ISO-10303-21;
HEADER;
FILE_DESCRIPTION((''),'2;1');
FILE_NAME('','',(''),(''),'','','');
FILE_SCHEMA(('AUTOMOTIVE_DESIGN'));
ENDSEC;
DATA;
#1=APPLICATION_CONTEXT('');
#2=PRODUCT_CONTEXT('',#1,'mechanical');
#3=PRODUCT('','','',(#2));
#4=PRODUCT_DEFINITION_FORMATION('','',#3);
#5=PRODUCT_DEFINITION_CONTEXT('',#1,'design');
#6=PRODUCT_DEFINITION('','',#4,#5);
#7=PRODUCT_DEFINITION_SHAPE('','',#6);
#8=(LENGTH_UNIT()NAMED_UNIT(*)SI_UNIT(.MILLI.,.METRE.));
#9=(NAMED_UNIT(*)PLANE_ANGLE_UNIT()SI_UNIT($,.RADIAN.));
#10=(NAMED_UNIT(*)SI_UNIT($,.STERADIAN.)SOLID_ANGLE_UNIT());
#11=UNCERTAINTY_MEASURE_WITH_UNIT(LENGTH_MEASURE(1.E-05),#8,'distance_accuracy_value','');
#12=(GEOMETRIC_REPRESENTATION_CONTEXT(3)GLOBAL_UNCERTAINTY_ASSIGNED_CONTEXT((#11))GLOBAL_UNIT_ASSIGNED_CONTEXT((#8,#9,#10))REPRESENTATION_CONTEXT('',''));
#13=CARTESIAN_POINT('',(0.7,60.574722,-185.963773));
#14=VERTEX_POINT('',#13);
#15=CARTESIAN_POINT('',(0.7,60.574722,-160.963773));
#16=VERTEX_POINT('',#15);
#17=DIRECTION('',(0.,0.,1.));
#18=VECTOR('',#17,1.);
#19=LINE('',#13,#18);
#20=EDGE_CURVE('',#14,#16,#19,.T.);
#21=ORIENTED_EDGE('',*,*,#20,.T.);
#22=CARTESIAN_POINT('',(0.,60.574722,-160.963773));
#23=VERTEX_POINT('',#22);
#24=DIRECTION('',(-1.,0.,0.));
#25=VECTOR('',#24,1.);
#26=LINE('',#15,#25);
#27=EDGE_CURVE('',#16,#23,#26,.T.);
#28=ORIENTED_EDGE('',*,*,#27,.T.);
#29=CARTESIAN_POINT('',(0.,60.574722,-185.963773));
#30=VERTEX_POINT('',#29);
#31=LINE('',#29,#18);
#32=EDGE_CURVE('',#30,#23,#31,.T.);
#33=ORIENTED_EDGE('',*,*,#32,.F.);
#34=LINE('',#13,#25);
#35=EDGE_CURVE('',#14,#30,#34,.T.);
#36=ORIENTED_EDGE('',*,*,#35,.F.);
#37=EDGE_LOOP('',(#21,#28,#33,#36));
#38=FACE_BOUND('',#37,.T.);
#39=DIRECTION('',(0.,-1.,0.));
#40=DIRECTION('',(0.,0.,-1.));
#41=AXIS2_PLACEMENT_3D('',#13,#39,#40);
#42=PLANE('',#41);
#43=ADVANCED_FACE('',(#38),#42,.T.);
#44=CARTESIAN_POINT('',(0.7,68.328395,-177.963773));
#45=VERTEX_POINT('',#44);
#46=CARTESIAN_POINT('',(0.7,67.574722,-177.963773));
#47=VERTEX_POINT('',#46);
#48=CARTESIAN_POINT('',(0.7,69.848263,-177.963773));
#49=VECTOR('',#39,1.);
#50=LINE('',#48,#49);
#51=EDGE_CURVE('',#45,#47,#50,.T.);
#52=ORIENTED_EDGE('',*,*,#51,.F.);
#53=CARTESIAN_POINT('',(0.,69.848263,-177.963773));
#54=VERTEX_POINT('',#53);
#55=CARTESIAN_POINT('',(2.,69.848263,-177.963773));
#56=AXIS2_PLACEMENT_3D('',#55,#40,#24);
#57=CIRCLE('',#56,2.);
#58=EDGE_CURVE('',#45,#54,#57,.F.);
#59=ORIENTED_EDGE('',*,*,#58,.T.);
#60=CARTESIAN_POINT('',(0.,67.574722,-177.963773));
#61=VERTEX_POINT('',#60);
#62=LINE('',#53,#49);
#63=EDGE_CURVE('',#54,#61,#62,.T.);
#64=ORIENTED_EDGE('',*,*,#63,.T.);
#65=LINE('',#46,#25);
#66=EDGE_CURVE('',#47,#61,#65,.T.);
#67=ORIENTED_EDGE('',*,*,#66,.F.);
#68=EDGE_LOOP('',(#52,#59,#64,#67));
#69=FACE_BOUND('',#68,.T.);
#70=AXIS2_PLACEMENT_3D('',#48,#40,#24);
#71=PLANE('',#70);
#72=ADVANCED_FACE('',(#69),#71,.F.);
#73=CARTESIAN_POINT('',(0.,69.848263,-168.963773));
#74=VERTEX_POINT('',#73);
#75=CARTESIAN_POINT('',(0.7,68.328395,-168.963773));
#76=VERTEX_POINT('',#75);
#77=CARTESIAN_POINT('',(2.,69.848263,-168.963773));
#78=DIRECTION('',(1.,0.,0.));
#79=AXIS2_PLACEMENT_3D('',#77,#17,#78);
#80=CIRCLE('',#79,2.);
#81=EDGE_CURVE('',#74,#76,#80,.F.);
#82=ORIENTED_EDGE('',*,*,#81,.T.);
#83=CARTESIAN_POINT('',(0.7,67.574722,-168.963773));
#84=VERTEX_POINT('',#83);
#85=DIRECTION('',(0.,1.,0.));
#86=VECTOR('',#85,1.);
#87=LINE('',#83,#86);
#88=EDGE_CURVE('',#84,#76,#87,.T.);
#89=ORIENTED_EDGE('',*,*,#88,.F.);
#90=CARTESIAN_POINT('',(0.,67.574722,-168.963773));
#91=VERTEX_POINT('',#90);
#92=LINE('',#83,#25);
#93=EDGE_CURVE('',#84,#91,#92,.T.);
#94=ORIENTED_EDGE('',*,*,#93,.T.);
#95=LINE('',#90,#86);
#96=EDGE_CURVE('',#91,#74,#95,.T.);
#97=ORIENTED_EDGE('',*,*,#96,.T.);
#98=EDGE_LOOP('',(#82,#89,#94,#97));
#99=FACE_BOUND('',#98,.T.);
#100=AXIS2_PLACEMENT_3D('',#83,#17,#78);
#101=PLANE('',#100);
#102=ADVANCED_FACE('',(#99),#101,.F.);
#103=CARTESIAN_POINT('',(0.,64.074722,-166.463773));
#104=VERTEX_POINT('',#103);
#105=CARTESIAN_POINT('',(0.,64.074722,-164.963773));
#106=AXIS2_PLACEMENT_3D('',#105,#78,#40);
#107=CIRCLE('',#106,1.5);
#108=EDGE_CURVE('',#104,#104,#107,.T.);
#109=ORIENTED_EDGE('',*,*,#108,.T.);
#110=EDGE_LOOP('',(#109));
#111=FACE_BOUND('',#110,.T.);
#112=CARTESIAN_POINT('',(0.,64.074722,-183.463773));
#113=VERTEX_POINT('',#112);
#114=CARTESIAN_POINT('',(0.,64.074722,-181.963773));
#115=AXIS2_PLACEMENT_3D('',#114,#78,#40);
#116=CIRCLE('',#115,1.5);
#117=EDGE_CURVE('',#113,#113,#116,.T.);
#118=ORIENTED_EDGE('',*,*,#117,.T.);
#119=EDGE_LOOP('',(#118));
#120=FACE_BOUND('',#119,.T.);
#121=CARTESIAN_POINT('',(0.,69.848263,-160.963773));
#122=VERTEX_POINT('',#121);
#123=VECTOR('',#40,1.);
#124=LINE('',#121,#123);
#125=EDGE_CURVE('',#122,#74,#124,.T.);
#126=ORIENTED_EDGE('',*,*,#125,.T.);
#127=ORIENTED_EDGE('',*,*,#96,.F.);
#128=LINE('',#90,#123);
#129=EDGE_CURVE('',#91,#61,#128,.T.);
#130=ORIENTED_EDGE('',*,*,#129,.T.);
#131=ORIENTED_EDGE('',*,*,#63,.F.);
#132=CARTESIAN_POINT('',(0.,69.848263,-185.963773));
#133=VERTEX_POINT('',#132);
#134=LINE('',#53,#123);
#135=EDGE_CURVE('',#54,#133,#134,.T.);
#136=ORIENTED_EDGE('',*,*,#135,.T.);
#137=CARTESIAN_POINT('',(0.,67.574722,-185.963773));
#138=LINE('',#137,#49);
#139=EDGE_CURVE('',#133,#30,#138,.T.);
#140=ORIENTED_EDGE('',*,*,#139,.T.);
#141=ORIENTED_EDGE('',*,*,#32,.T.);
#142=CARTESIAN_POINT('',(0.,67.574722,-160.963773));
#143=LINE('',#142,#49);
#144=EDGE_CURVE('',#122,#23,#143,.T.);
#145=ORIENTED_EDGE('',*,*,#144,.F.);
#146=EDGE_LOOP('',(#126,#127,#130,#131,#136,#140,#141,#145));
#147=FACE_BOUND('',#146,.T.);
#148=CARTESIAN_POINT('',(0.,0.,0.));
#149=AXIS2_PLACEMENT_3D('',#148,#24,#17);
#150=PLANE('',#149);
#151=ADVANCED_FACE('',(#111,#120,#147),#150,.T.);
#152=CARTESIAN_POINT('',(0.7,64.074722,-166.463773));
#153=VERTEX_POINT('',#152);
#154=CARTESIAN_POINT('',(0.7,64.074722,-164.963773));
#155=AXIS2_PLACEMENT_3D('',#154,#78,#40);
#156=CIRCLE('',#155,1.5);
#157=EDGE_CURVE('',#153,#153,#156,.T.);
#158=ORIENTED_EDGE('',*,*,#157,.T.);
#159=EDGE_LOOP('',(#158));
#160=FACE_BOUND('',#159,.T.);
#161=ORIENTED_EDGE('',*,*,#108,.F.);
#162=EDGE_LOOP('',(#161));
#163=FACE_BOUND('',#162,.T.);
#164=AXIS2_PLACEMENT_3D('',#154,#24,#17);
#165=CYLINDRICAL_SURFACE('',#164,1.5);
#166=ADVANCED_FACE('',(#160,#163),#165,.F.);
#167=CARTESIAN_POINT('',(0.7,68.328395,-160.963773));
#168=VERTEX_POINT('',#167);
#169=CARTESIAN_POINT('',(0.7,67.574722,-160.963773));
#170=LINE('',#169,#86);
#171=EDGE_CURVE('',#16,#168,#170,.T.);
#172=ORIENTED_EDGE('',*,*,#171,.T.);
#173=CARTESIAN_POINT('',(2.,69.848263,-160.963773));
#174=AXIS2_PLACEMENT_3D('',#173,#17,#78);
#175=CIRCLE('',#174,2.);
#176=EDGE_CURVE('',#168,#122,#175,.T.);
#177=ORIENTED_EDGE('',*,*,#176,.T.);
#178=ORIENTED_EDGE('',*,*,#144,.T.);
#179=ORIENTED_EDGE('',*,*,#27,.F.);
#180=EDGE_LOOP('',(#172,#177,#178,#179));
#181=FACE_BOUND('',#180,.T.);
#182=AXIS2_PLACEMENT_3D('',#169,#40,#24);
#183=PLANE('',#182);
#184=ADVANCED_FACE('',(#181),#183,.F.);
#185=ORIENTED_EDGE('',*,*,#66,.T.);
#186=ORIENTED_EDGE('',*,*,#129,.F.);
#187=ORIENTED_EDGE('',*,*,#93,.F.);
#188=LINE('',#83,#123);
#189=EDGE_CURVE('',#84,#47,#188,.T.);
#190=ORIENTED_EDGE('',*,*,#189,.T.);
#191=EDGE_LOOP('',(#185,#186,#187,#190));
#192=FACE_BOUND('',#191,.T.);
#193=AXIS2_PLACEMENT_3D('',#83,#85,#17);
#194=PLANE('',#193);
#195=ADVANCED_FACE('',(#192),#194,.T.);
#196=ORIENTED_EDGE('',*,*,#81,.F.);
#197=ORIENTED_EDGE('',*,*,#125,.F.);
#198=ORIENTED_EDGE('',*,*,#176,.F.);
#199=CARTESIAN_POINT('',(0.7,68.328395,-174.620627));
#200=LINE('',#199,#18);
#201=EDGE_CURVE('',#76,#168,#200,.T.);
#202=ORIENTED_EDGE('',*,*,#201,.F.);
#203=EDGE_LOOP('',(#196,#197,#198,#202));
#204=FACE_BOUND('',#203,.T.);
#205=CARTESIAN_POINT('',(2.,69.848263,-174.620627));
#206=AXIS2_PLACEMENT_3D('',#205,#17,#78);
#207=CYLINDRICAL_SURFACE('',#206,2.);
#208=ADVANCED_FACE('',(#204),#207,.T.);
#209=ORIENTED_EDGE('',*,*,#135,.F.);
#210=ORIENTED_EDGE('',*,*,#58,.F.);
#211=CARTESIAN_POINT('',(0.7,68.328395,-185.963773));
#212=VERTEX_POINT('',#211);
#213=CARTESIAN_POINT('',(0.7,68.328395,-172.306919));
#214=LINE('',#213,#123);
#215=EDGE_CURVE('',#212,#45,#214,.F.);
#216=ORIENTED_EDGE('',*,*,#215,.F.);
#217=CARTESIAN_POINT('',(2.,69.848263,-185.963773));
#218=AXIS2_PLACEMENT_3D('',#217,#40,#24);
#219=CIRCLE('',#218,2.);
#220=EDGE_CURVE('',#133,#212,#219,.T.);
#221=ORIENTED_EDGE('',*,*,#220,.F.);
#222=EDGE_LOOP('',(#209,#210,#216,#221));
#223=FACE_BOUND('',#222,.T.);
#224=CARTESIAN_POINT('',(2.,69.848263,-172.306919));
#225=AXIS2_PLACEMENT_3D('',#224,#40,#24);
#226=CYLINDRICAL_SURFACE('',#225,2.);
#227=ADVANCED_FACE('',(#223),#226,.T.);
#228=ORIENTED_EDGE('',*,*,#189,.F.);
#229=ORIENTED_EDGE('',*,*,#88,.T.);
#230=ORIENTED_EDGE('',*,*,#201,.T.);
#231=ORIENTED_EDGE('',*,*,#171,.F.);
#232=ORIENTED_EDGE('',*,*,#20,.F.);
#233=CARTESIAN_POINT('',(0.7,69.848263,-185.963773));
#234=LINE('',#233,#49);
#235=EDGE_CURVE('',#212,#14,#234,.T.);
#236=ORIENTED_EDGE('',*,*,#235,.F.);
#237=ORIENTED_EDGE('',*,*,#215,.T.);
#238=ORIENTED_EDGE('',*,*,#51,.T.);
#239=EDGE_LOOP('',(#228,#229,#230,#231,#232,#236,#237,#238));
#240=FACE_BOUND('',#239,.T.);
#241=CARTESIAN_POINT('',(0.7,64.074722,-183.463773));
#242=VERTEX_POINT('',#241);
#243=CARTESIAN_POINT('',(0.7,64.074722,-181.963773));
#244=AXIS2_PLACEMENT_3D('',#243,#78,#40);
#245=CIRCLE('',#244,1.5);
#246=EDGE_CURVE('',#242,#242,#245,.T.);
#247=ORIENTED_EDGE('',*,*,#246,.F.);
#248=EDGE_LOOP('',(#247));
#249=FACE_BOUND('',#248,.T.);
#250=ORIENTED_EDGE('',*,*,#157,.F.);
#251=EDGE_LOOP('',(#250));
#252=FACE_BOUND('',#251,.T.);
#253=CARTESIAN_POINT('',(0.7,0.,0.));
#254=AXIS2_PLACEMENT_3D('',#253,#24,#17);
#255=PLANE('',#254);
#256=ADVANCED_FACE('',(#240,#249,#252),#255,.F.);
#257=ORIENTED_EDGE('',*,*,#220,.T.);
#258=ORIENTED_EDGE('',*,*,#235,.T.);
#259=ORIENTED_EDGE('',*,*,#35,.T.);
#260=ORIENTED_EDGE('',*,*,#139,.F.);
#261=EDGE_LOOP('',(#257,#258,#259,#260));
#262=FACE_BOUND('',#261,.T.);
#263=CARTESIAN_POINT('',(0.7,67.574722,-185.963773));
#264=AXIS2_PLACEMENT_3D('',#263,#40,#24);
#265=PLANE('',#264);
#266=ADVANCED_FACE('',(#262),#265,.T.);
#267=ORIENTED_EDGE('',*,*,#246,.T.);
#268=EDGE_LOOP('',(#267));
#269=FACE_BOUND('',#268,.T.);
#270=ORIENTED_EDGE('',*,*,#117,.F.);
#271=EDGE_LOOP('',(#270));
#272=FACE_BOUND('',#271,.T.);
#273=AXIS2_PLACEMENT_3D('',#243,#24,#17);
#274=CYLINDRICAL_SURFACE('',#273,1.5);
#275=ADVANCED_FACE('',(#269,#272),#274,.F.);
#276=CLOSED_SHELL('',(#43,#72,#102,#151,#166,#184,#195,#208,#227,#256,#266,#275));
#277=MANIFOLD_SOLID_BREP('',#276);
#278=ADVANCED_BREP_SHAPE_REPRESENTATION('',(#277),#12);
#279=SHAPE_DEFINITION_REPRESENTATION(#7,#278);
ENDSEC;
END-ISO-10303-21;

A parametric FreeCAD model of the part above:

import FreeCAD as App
import Part
import Sketcher
Q = App.Units.Quantity


def add_polygon(sketch, points):
    """Adds a closed chain of lines whose ends are joined by coincident constraints."""
    first, n = sketch.GeometryCount, len(points)
    for a, b in zip(points, points[1:] + points[:1]):
        sketch.addGeometry(Part.LineSegment(App.Vector(*a, 0), App.Vector(*b, 0)), False)
    for i in range(n):
        sketch.addConstraint(Sketcher.Constraint("Coincident", first + i, 2, first + (i + 1) % n, 1))

doc = App.newDocument("Part")
body = doc.addObject("PartDesign::Body", "Body")

# Sketch on YZ plane
sketch1 = doc.addObject("Sketcher::SketchObject", "Sketch")
body.addObject(sketch1)
sketch1.AttachmentSupport = (doc.YZ_Plane, [""])
sketch1.MapMode = "FlatFace"
add_polygon(sketch1, [(60.6, -186), (69.8, -186), (69.8, -178), (67.6, -178), (67.6, -169), (69.8, -169), (69.8, -161), (60.6, -161)])  # lines 0-7
sketch1.addGeometry(Part.Circle(App.Vector(64.1, -182, 0), App.Vector(0, 0, 1), 1.5), False)  # 8
sketch1.addGeometry(Part.Circle(App.Vector(64.1, -165, 0), App.Vector(0, 0, 1), 1.5), False)  # 9
sketch1.addConstraint([
    Sketcher.Constraint("Horizontal", 0),
    Sketcher.Constraint("Vertical", 1),
    Sketcher.Constraint("Horizontal", 2),
    Sketcher.Constraint("Vertical", 3),
    Sketcher.Constraint("Horizontal", 4),
    Sketcher.Constraint("Vertical", 5),
    Sketcher.Constraint("Horizontal", 6),
    Sketcher.Constraint("Vertical", 7),
    Sketcher.Constraint("Equal", 8, 9),
    Sketcher.Constraint("Vertical", 8, 3, 9, 3),
    Sketcher.Constraint("Vertical", 1, 2, 4, 2),
    Sketcher.Constraint("Equal", 1, 5),
    Sketcher.Constraint("Diameter", 8, Q("3 mm")),
    Sketcher.Constraint("DistanceY", 1, 1, 1, 2, Q("8 mm")),
    Sketcher.Constraint("DistanceY", 3, 1, 3, 2, Q("9 mm")),
    Sketcher.Constraint("DistanceY", 8, 3, 9, 3, Q("17 mm")),
    Sketcher.Constraint("DistanceY", 0, 2, 8, 3, Q("4 mm")),
    Sketcher.Constraint("DistanceX", 6, 2, 3, 2, Q("7 mm")),
    Sketcher.Constraint("DistanceX", 8, 3, 2, 2, Q("3.5 mm")),
    Sketcher.Constraint("DistanceX", 0, 1, 0, 2, Q("9.273541 mm")),
    Sketcher.Constraint("DistanceX", -1, 1, 8, 3, Q("64.074722 mm")),
    Sketcher.Constraint("DistanceY", 8, 3, -1, 1, Q("181.963773 mm")),
])
pad1 = doc.addObject("PartDesign::Pad", "Pad")
body.addObject(pad1)
pad1.Profile = sketch1
pad1.Length = 0.7

# Sketch on XY plane
sketch2 = doc.addObject("Sketcher::SketchObject", "Sketch001")
body.addObject(sketch2)
sketch2.AttachmentSupport = (doc.XY_Plane, [""])
sketch2.MapMode = "FlatFace"
sketch2.AttachmentOffset = App.Placement(App.Vector(0, 0, -160.963773), App.Rotation())
sketch2.addGeometry(Part.Circle(App.Vector(2, 69.8, 0), App.Vector(0, 0, 1), 2), False)
sketch2.addConstraint([
    Sketcher.Constraint("Diameter", 0, Q("4 mm")),
    Sketcher.Constraint("DistanceX", -1, 1, 0, 3, Q("2 mm")),
    Sketcher.Constraint("DistanceY", -1, 1, 0, 3, Q("69.848263 mm")),
])
pad2 = doc.addObject("PartDesign::Pad", "Pad001")
body.addObject(pad2)
pad2.Profile = sketch2
pad2.Length = 8
pad2.Reversed = True

# Sketch on XY plane
sketch3 = doc.addObject("Sketcher::SketchObject", "Sketch002")
body.addObject(sketch3)
sketch3.AttachmentSupport = (doc.XY_Plane, [""])
sketch3.MapMode = "FlatFace"
sketch3.AttachmentOffset = App.Placement(App.Vector(0, 0, -185.963773), App.Rotation())
sketch3.addGeometry(Part.Circle(App.Vector(2, 69.8, 0), App.Vector(0, 0, 1), 2), False)
sketch3.addConstraint([
    Sketcher.Constraint("Diameter", 0, Q("4 mm")),
    Sketcher.Constraint("DistanceX", -1, 1, 0, 3, Q("2 mm")),
    Sketcher.Constraint("DistanceY", -1, 1, 0, 3, Q("69.848263 mm")),
])
pad3 = doc.addObject("PartDesign::Pad", "Pad002")
body.addObject(pad3)
pad3.Profile = sketch3
pad3.Length = 8

doc.recompute()
